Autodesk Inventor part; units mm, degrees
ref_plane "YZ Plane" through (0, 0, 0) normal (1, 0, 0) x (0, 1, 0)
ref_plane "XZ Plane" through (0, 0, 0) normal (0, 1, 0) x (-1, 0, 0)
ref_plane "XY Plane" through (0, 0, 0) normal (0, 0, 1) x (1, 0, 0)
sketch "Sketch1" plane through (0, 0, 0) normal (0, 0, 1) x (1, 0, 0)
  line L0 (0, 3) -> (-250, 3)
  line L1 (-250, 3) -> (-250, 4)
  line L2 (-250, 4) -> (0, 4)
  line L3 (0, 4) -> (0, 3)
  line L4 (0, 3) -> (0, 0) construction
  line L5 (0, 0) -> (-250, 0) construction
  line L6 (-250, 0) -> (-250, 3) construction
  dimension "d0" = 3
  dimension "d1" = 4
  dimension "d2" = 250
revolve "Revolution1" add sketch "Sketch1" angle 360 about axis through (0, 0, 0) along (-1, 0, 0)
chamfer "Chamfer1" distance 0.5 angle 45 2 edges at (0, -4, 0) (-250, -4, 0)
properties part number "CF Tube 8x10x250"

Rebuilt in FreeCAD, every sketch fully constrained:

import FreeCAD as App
import Part
import Sketcher

V = App.Vector


def edges_at(feature, points):
    """Names of the edges that pass closest to the given points."""
    edges = feature.Shape.Edges
    near = lambda p: min(range(len(edges)), key=lambda i: edges[i].distToShape(Part.Vertex(*p))[0])
    return sorted({f"Edge{near(p) + 1}" for p in points})

doc = App.newDocument("Part")
params = doc.addObject("Spreadsheet::Sheet", "Params")
for row, (alias, value) in enumerate([
    ("sketch1_width", "250 mm"),
    ("revolution_angle", "360 deg"),
    ("chamfer_size", "0.5 mm"),
], start=1):
    params.set(f"A{row}", alias)
    params.set(f"B{row}", "=" + value)
    params.setAlias(f"B{row}", alias)

body = doc.addObject("PartDesign::Body", "Body")

sketch1 = doc.addObject("Sketcher::SketchObject", "Sketch")
body.addObject(sketch1)
sketch1.AttachmentSupport = (doc.XY_Plane, [""])
sketch1.MapMode = "FlatFace"
sketch1.addGeometry([
    Part.LineSegment(V(-250, 3, 0), V(0, 3, 0)),
    Part.LineSegment(V(0, 3, 0), V(0, 4, 0)),
    Part.LineSegment(V(0, 4, 0), V(-250, 4, 0)),
    Part.LineSegment(V(-250, 4, 0), V(-250, 3, 0)),
], False)
sketch1.addConstraint([
    Sketcher.Constraint("Coincident", 0, 2, 1, 1),
    Sketcher.Constraint("Coincident", 1, 2, 2, 1),
    Sketcher.Constraint("Coincident", 2, 2, 3, 1),
    Sketcher.Constraint("Coincident", 3, 2, 0, 1),
    Sketcher.Constraint("Horizontal", 0),
    Sketcher.Constraint("Vertical", 1),
    Sketcher.Constraint("Horizontal", 2),
    Sketcher.Constraint("Vertical", 3),
    Sketcher.Constraint("PointOnObject", 0, 2, -2),
    Sketcher.Constraint("DistanceX", 0, 1, 0, 2, 250.0),
    Sketcher.Constraint("DistanceY", -1, 1, 0, 2, 3.0),
    Sketcher.Constraint("DistanceY", -1, 1, 1, 2, 4.0),
])
sketch1.setExpression("Constraints[9]", "Params.sketch1_width")
revolution = doc.addObject("PartDesign::Revolution", "Revolution")
body.addObject(revolution)
revolution.Profile = sketch1
revolution.ReferenceAxis = (sketch1, ["H_Axis"])
revolution.setExpression("Angle", "Params.revolution_angle")
doc.recompute()

chamfer = doc.addObject("PartDesign::Chamfer", "Chamfer")
body.addObject(chamfer)
chamfer.Base = (revolution, edges_at(revolution, [(0, -4, 0), (-250, -4, 0)]))
chamfer.setExpression("Size", "Params.chamfer_size")

doc.recompute()
